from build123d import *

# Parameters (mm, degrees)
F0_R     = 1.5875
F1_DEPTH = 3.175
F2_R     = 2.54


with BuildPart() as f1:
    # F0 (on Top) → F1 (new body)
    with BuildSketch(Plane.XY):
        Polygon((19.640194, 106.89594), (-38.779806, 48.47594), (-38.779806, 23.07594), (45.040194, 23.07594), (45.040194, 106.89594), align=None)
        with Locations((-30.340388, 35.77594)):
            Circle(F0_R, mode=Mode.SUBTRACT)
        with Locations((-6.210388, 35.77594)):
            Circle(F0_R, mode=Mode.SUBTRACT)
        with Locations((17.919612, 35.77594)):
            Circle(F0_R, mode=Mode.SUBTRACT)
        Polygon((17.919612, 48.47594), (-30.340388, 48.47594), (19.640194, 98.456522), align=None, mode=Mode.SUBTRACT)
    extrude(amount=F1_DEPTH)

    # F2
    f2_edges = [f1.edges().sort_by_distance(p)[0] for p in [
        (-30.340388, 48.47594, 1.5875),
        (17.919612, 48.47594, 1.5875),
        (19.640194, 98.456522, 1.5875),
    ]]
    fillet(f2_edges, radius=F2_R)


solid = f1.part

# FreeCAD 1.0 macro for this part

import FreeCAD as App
import Part
import Sketcher
from FreeCAD import Vector
Q = App.Units.Quantity


def edges_at(feature, points):
    """Names of the edges that pass closest to the given points."""
    edges = feature.Shape.Edges
    near = lambda p: min(range(len(edges)), key=lambda i: edges[i].distToShape(Part.Vertex(*p))[0])
    return sorted({f"Edge{near(p) + 1}" for p in points})


def add_polygon(sketch, points):
    """Adds a closed chain of lines whose ends are joined by coincident constraints."""
    first, n = sketch.GeometryCount, len(points)
    for a, b in zip(points, points[1:] + points[:1]):
        sketch.addGeometry(Part.LineSegment(App.Vector(*a, 0), App.Vector(*b, 0)), False)
    for i in range(n):
        sketch.addConstraint(Sketcher.Constraint("Coincident", first + i, 2, first + (i + 1) % n, 1))

doc = App.newDocument("Part")
body = doc.addObject("PartDesign::Body", "Body")

sketch1 = doc.addObject("Sketcher::SketchObject", "Sketch")
body.addObject(sketch1)
sketch1.AttachmentSupport = (doc.XY_Plane, [""])
sketch1.MapMode = "FlatFace"
add_polygon(sketch1, [(19.640194, 106.89594), (-38.779806, 48.47594), (-38.779806, 23.07594), (45.040194, 23.07594), (45.040194, 106.89594)])
sketch1.addGeometry(Part.Circle(Vector(-30.340388, 35.77594, 0), Vector(0, 0, 1), 1.5875), False)
sketch1.addGeometry(Part.Circle(Vector(-6.210388, 35.77594, 0), Vector(0, 0, 1), 1.5875), False)
sketch1.addGeometry(Part.Circle(Vector(17.919612, 35.77594, 0), Vector(0, 0, 1), 1.5875), False)
add_polygon(sketch1, [(19.640194, 98.456522), (17.919612, 48.47594), (-30.340388, 48.47594)])
sketch1.addConstraint(Sketcher.Constraint("Vertical", 1))
sketch1.addConstraint(Sketcher.Constraint("Horizontal", 2))
sketch1.addConstraint(Sketcher.Constraint("Vertical", 3))
sketch1.addConstraint(Sketcher.Constraint("Horizontal", 4))
sketch1.addConstraint(Sketcher.Constraint("Horizontal", 9))
sketch1.addConstraint(Sketcher.Constraint("Equal", 5, 6))
sketch1.addConstraint(Sketcher.Constraint("Equal", 6, 7))
sketch1.addConstraint(Sketcher.Constraint("Parallel", 0, 10))
sketch1.addConstraint(Sketcher.Constraint("Horizontal", 5, 3, 6, 3))
sketch1.addConstraint(Sketcher.Constraint("Horizontal", 6, 3, 7, 3))
sketch1.addConstraint(Sketcher.Constraint("Horizontal", 0, 2, 8, 2))
sketch1.addConstraint(Sketcher.Constraint("Vertical", 7, 3, 8, 2))
sketch1.addConstraint(Sketcher.Constraint("Vertical", 5, 3, 9, 2))
sketch1.addConstraint(Sketcher.Constraint("Vertical", 4, 2, 10, 2))
sketch1.addConstraint(Sketcher.Constraint("Equal", 4, 1))
sketch1.addConstraint(Sketcher.Constraint("Equal", 2, 3))
sketch1.addConstraint(Sketcher.Constraint("DistanceX", 4, 2, 4, 1, Q("1 in")))
sketch1.addConstraint(Sketcher.Constraint("Diameter", 5, Q("0.125 in")))
sketch1.addConstraint(Sketcher.Constraint("DistanceX", 2, 1, 2, 2, Q("3.3 in")))
sketch1.addConstraint(Sketcher.Constraint("DistanceX", 9, 2, 9, 1, Q("1.9 in")))
sketch1.addConstraint(Sketcher.Constraint("DistanceY", 5, 3, 0, 2, Q("0.5 in")))
sketch1.addConstraint(Sketcher.Constraint("DistanceX", 5, 3, 6, 3, Q("0.95 in")))
sketch1.addConstraint(Sketcher.Constraint("Distance", 8, 50.010189))
sketch1.addConstraint(Sketcher.Constraint("DistanceX", 5, 3, -1, 1, 30.340388))
sketch1.addConstraint(Sketcher.Constraint("DistanceY", -1, 1, 5, 3, 35.77594))
pad1 = doc.addObject("PartDesign::Pad", "Pad")
body.addObject(pad1)
pad1.Profile = sketch1
pad1.Length = Q("0.125 in")
doc.recompute()

fillet = doc.addObject("PartDesign::Fillet", "Fillet")
body.addObject(fillet)
fillet.Base = (pad1, edges_at(pad1, [(-30.34, 48.476, 1.587), (17.92, 48.476, 1.587), (19.64, 98.457, 1.587)]))
fillet.Radius = Q("0.1 in")

doc.recompute()
